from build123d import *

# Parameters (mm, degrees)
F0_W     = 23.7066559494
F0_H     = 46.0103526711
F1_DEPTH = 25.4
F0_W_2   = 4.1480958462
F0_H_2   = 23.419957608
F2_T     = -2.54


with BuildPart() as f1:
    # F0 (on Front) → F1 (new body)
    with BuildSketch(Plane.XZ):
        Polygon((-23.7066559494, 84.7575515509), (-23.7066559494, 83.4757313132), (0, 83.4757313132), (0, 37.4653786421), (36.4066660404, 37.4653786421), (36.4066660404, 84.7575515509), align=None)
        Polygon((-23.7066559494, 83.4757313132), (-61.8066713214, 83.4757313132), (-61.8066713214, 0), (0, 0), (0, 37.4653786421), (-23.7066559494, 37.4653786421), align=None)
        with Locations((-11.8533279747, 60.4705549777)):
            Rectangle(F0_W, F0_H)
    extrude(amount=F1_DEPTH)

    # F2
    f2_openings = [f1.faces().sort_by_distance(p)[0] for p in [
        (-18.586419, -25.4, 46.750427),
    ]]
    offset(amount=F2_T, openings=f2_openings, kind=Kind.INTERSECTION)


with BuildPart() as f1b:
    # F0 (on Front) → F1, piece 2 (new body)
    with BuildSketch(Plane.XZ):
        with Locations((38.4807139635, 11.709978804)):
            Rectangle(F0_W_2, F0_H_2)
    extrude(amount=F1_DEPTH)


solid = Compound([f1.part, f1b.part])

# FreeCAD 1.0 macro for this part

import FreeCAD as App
import Part
import Sketcher

V = App.Vector


def faces_at(feature, points):
    """Names of the faces that lie closest to the given points."""
    faces = feature.Shape.Faces
    near = lambda p: min(range(len(faces)), key=lambda i: faces[i].distToShape(Part.Vertex(*p))[0])
    return sorted({f"Face{near(p) + 1}" for p in points})

doc = App.newDocument("Part")
params = doc.addObject("Spreadsheet::Sheet", "Params")
for row, (alias, value) in enumerate([
    ("pad1_length", "1 in"),
    ("thickness_wall", "0.1 in"),
    ("pad2_length", "1 in"),
], start=1):
    params.set(f"A{row}", alias)
    params.set(f"B{row}", "=" + value)
    params.setAlias(f"B{row}", alias)

body = doc.addObject("PartDesign::Body", "Body")

# Sketch on XZ plane
sketch1 = doc.addObject("Sketcher::SketchObject", "Sketch")
body.addObject(sketch1)
sketch1.AttachmentSupport = (doc.XZ_Plane, [""])
sketch1.MapMode = "FlatFace"
sketch1.addGeometry([
    Part.LineSegment(V(-23.706656, 84.757552, 0), V(-23.706656, 83.475731, 0)),  # 0
    Part.LineSegment(V(-23.706656, 83.475731, 0), V(-61.806671, 83.475731, 0)),  # 1
    Part.LineSegment(V(-61.806671, 83.475731, 0), V(-61.806671, 0, 0)),  # 2
    Part.LineSegment(V(-61.806671, 0, 0), V(0, 0, 0)),  # 3
    Part.LineSegment(V(0, 0, 0), V(0, 37.465379, 0)),  # 4
    Part.LineSegment(V(0, 37.465379, 0), V(36.406666, 37.465379, 0)),  # 5
    Part.LineSegment(V(36.406666, 37.465379, 0), V(36.406666, 84.757552, 0)),  # 6
    Part.LineSegment(V(36.406666, 84.757552, 0), V(-23.706656, 84.757552, 0)),  # 7
], False)
sketch1.addConstraint([
    Sketcher.Constraint("Coincident", 0, 2, 1, 1),
    Sketcher.Constraint("Coincident", 1, 2, 2, 1),
    Sketcher.Constraint("Coincident", 2, 2, 3, 1),
    Sketcher.Constraint("Coincident", 3, 2, 4, 1),
    Sketcher.Constraint("Coincident", 4, 2, 5, 1),
    Sketcher.Constraint("Coincident", 5, 2, 6, 1),
    Sketcher.Constraint("Coincident", 6, 2, 7, 1),
    Sketcher.Constraint("Coincident", 7, 2, 0, 1),
    Sketcher.Constraint("Vertical", 0),
    Sketcher.Constraint("Horizontal", 1),
    Sketcher.Constraint("Vertical", 2),
    Sketcher.Constraint("Horizontal", 3),
    Sketcher.Constraint("Vertical", 4),
    Sketcher.Constraint("Horizontal", 5),
    Sketcher.Constraint("Vertical", 6),
    Sketcher.Constraint("Horizontal", 7),
    Sketcher.Constraint("Coincident", 3, 2, -1, 1),
    Sketcher.Constraint("DistanceX", 3, 1, 3, 2, 61.806671),
    Sketcher.Constraint("DistanceX", 7, 2, 7, 1, 60.113322),
    Sketcher.Constraint("DistanceY", 0, 2, 0, 1, 1.28182),
    Sketcher.Constraint("DistanceY", 2, 2, 2, 1, 83.475731),
    Sketcher.Constraint("DistanceY", 4, 1, 4, 2, 37.465379),
    Sketcher.Constraint("DistanceX", 1, 2, 1, 1, 38.100015),
])
pad1 = doc.addObject("PartDesign::Pad", "Pad")
body.addObject(pad1)
pad1.Profile = sketch1
pad1.setExpression("Length", "Params.pad1_length")
doc.recompute()

thickness = doc.addObject("PartDesign::Thickness", "Thickness")
body.addObject(thickness)
thickness.Base = (pad1, faces_at(pad1, [(-12.7, -25.4, 42.379)]))
thickness.setExpression("Value", "Params.thickness_wall")
thickness.Reversed = True
thickness.Join = "Intersection"
body2 = doc.addObject("PartDesign::Body", "Body001")

# Sketch on XZ plane
sketch2 = doc.addObject("Sketcher::SketchObject", "Sketch001")
body2.addObject(sketch2)
sketch2.AttachmentSupport = (doc.getObject("XZ_Plane001"), [""])
sketch2.MapMode = "FlatFace"
sketch2.addGeometry([
    Part.LineSegment(V(36.406666, 23.419958, 0), V(36.406666, 0, 0)),
    Part.LineSegment(V(36.406666, 0, 0), V(40.554762, 0, 0)),
    Part.LineSegment(V(40.554762, 0, 0), V(40.554762, 23.419958, 0)),
    Part.LineSegment(V(40.554762, 23.419958, 0), V(36.406666, 23.419958, 0)),
], False)
sketch2.addConstraint([
    Sketcher.Constraint("Coincident", 0, 2, 1, 1),
    Sketcher.Constraint("Coincident", 1, 2, 2, 1),
    Sketcher.Constraint("Coincident", 2, 2, 3, 1),
    Sketcher.Constraint("Coincident", 3, 2, 0, 1),
    Sketcher.Constraint("Vertical", 0),
    Sketcher.Constraint("Horizontal", 1),
    Sketcher.Constraint("Vertical", 2),
    Sketcher.Constraint("Horizontal", 3),
    Sketcher.Constraint("PointOnObject", 0, 2, -1),
    Sketcher.Constraint("DistanceX", 1, 1, 1, 2, 4.148096),
    Sketcher.Constraint("DistanceY", 0, 2, 0, 1, 23.419958),
    Sketcher.Constraint("DistanceX", -1, 1, 1, 2, 40.554762),
])
pad2 = doc.addObject("PartDesign::Pad", "Pad001")
body2.addObject(pad2)
pad2.Profile = sketch2
pad2.setExpression("Length", "Params.pad2_length")

doc.recompute()
